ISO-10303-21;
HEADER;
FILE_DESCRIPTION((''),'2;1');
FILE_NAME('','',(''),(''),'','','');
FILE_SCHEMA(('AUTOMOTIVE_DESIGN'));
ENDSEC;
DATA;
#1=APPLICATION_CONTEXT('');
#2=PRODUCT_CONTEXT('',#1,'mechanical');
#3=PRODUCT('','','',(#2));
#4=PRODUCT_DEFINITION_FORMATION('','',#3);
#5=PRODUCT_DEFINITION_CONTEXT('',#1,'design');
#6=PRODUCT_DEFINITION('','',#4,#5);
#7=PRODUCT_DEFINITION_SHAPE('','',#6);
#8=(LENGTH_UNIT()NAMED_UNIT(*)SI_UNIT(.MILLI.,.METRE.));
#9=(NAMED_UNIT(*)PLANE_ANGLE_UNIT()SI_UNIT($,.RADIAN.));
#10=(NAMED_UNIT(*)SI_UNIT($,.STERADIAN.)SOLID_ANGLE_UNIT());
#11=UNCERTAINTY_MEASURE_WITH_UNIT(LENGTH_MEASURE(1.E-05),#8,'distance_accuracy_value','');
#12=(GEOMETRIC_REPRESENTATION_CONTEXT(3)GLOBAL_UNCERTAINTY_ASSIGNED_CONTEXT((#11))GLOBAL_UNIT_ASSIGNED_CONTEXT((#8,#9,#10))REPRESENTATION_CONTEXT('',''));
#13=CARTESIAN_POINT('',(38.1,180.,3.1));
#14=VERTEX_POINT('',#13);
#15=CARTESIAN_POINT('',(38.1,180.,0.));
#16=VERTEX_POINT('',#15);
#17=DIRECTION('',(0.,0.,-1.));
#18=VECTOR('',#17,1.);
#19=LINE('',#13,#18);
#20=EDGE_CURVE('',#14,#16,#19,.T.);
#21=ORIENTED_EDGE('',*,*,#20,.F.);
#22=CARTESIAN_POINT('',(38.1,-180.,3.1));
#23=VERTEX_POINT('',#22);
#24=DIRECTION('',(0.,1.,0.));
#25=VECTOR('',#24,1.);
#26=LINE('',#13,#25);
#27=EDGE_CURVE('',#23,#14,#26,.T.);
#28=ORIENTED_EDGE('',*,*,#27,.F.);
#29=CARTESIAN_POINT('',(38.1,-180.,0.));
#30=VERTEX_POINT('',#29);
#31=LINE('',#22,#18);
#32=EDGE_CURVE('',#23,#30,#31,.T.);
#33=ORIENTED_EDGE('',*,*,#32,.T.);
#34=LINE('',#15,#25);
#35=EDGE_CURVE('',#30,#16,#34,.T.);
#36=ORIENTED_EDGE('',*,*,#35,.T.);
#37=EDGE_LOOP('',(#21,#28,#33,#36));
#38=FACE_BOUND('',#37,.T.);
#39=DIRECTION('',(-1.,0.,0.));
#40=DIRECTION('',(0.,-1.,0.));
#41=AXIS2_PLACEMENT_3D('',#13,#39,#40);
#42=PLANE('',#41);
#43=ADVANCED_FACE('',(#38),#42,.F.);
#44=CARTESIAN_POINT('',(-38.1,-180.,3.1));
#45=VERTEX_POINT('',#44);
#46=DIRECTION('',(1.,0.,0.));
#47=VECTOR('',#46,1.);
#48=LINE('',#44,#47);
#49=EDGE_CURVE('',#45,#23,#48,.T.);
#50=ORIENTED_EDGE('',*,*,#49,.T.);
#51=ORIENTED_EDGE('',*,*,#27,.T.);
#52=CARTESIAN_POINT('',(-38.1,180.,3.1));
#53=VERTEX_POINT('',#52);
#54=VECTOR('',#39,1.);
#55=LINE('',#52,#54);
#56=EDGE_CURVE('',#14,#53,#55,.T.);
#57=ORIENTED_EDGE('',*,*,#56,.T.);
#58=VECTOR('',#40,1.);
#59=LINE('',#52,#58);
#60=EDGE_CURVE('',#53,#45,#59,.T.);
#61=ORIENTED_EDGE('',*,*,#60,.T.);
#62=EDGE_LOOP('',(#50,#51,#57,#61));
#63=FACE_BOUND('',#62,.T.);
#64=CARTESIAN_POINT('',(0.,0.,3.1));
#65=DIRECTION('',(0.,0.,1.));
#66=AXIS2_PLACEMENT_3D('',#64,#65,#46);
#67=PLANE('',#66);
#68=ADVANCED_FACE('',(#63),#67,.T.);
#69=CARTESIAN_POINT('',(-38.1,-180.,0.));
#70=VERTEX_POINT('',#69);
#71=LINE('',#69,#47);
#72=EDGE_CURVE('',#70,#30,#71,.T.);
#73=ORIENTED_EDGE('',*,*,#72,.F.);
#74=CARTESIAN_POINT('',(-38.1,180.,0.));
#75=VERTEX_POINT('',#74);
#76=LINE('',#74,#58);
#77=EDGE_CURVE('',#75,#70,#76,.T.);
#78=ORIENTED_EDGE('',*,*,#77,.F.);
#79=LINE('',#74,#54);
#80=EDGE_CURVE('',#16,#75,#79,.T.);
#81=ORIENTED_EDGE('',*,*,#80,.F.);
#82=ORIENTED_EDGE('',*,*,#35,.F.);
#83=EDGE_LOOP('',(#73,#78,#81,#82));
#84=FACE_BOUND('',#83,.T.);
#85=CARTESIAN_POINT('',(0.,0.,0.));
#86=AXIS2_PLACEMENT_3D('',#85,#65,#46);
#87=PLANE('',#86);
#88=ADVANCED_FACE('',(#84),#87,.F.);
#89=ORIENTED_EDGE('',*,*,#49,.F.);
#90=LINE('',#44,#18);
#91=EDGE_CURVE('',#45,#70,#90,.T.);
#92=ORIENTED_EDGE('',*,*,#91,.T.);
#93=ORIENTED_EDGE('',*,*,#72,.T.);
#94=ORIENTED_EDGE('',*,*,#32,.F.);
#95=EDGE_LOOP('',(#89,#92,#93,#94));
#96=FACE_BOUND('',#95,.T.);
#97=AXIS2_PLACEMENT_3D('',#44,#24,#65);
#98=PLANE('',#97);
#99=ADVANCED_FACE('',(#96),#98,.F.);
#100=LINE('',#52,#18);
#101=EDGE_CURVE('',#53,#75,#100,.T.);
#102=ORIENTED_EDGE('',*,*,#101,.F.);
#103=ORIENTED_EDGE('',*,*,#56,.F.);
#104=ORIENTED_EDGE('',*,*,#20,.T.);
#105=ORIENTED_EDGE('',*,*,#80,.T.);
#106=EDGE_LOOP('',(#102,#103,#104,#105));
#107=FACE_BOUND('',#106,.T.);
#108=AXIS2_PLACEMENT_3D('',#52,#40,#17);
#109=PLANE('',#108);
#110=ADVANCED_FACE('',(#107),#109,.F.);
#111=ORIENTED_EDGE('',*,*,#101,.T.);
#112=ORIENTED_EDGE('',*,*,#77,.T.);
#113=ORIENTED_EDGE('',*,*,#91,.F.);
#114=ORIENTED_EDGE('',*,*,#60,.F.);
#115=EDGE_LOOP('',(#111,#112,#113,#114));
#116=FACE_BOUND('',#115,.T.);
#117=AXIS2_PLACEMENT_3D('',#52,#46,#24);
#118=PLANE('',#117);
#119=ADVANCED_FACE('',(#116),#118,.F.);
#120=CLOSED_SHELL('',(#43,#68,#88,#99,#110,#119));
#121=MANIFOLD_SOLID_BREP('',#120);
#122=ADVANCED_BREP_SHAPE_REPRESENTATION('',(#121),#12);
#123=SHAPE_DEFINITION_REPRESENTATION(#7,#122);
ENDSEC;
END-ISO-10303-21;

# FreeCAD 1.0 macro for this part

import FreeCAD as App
import Part
import Sketcher

V = App.Vector


def add_polygon(sketch, points):
    """Adds a closed chain of lines whose ends are joined by coincident constraints."""
    first, n = sketch.GeometryCount, len(points)
    for a, b in zip(points, points[1:] + points[:1]):
        sketch.addGeometry(Part.LineSegment(App.Vector(*a, 0), App.Vector(*b, 0)), False)
    for i in range(n):
        sketch.addConstraint(Sketcher.Constraint("Coincident", first + i, 2, first + (i + 1) % n, 1))

doc = App.newDocument("Part")
body = doc.addObject("PartDesign::Body", "Body")

# Sketch on XY plane
sketch1 = body.newObject("Sketcher::SketchObject", "Sketch")
sketch1.AttachmentSupport = (doc.getObject("XY_Plane"), [""])
sketch1.MapMode = "FlatFace"
add_polygon(sketch1, [(-38, 180), (-38, -180), (38, -180), (38, 180)])  # lines 0-3
sketch1.addConstraint([
    Sketcher.Constraint("Vertical", 0),
    Sketcher.Constraint("Horizontal", 1),
    Sketcher.Constraint("Vertical", 2),
    Sketcher.Constraint("Horizontal", 3),
    Sketcher.Constraint("Symmetric", 0, 2, 2, 2, -1, 1),
    Sketcher.Constraint("DistanceY", 0, 2, 0, 1, 360.0),
    Sketcher.Constraint("DistanceX", 1, 1, 1, 2, 76.2),
])
pad1 = body.newObject("PartDesign::Pad", "Pad")
pad1.Profile = sketch1
pad1.Length = 3.1

doc.recompute()
